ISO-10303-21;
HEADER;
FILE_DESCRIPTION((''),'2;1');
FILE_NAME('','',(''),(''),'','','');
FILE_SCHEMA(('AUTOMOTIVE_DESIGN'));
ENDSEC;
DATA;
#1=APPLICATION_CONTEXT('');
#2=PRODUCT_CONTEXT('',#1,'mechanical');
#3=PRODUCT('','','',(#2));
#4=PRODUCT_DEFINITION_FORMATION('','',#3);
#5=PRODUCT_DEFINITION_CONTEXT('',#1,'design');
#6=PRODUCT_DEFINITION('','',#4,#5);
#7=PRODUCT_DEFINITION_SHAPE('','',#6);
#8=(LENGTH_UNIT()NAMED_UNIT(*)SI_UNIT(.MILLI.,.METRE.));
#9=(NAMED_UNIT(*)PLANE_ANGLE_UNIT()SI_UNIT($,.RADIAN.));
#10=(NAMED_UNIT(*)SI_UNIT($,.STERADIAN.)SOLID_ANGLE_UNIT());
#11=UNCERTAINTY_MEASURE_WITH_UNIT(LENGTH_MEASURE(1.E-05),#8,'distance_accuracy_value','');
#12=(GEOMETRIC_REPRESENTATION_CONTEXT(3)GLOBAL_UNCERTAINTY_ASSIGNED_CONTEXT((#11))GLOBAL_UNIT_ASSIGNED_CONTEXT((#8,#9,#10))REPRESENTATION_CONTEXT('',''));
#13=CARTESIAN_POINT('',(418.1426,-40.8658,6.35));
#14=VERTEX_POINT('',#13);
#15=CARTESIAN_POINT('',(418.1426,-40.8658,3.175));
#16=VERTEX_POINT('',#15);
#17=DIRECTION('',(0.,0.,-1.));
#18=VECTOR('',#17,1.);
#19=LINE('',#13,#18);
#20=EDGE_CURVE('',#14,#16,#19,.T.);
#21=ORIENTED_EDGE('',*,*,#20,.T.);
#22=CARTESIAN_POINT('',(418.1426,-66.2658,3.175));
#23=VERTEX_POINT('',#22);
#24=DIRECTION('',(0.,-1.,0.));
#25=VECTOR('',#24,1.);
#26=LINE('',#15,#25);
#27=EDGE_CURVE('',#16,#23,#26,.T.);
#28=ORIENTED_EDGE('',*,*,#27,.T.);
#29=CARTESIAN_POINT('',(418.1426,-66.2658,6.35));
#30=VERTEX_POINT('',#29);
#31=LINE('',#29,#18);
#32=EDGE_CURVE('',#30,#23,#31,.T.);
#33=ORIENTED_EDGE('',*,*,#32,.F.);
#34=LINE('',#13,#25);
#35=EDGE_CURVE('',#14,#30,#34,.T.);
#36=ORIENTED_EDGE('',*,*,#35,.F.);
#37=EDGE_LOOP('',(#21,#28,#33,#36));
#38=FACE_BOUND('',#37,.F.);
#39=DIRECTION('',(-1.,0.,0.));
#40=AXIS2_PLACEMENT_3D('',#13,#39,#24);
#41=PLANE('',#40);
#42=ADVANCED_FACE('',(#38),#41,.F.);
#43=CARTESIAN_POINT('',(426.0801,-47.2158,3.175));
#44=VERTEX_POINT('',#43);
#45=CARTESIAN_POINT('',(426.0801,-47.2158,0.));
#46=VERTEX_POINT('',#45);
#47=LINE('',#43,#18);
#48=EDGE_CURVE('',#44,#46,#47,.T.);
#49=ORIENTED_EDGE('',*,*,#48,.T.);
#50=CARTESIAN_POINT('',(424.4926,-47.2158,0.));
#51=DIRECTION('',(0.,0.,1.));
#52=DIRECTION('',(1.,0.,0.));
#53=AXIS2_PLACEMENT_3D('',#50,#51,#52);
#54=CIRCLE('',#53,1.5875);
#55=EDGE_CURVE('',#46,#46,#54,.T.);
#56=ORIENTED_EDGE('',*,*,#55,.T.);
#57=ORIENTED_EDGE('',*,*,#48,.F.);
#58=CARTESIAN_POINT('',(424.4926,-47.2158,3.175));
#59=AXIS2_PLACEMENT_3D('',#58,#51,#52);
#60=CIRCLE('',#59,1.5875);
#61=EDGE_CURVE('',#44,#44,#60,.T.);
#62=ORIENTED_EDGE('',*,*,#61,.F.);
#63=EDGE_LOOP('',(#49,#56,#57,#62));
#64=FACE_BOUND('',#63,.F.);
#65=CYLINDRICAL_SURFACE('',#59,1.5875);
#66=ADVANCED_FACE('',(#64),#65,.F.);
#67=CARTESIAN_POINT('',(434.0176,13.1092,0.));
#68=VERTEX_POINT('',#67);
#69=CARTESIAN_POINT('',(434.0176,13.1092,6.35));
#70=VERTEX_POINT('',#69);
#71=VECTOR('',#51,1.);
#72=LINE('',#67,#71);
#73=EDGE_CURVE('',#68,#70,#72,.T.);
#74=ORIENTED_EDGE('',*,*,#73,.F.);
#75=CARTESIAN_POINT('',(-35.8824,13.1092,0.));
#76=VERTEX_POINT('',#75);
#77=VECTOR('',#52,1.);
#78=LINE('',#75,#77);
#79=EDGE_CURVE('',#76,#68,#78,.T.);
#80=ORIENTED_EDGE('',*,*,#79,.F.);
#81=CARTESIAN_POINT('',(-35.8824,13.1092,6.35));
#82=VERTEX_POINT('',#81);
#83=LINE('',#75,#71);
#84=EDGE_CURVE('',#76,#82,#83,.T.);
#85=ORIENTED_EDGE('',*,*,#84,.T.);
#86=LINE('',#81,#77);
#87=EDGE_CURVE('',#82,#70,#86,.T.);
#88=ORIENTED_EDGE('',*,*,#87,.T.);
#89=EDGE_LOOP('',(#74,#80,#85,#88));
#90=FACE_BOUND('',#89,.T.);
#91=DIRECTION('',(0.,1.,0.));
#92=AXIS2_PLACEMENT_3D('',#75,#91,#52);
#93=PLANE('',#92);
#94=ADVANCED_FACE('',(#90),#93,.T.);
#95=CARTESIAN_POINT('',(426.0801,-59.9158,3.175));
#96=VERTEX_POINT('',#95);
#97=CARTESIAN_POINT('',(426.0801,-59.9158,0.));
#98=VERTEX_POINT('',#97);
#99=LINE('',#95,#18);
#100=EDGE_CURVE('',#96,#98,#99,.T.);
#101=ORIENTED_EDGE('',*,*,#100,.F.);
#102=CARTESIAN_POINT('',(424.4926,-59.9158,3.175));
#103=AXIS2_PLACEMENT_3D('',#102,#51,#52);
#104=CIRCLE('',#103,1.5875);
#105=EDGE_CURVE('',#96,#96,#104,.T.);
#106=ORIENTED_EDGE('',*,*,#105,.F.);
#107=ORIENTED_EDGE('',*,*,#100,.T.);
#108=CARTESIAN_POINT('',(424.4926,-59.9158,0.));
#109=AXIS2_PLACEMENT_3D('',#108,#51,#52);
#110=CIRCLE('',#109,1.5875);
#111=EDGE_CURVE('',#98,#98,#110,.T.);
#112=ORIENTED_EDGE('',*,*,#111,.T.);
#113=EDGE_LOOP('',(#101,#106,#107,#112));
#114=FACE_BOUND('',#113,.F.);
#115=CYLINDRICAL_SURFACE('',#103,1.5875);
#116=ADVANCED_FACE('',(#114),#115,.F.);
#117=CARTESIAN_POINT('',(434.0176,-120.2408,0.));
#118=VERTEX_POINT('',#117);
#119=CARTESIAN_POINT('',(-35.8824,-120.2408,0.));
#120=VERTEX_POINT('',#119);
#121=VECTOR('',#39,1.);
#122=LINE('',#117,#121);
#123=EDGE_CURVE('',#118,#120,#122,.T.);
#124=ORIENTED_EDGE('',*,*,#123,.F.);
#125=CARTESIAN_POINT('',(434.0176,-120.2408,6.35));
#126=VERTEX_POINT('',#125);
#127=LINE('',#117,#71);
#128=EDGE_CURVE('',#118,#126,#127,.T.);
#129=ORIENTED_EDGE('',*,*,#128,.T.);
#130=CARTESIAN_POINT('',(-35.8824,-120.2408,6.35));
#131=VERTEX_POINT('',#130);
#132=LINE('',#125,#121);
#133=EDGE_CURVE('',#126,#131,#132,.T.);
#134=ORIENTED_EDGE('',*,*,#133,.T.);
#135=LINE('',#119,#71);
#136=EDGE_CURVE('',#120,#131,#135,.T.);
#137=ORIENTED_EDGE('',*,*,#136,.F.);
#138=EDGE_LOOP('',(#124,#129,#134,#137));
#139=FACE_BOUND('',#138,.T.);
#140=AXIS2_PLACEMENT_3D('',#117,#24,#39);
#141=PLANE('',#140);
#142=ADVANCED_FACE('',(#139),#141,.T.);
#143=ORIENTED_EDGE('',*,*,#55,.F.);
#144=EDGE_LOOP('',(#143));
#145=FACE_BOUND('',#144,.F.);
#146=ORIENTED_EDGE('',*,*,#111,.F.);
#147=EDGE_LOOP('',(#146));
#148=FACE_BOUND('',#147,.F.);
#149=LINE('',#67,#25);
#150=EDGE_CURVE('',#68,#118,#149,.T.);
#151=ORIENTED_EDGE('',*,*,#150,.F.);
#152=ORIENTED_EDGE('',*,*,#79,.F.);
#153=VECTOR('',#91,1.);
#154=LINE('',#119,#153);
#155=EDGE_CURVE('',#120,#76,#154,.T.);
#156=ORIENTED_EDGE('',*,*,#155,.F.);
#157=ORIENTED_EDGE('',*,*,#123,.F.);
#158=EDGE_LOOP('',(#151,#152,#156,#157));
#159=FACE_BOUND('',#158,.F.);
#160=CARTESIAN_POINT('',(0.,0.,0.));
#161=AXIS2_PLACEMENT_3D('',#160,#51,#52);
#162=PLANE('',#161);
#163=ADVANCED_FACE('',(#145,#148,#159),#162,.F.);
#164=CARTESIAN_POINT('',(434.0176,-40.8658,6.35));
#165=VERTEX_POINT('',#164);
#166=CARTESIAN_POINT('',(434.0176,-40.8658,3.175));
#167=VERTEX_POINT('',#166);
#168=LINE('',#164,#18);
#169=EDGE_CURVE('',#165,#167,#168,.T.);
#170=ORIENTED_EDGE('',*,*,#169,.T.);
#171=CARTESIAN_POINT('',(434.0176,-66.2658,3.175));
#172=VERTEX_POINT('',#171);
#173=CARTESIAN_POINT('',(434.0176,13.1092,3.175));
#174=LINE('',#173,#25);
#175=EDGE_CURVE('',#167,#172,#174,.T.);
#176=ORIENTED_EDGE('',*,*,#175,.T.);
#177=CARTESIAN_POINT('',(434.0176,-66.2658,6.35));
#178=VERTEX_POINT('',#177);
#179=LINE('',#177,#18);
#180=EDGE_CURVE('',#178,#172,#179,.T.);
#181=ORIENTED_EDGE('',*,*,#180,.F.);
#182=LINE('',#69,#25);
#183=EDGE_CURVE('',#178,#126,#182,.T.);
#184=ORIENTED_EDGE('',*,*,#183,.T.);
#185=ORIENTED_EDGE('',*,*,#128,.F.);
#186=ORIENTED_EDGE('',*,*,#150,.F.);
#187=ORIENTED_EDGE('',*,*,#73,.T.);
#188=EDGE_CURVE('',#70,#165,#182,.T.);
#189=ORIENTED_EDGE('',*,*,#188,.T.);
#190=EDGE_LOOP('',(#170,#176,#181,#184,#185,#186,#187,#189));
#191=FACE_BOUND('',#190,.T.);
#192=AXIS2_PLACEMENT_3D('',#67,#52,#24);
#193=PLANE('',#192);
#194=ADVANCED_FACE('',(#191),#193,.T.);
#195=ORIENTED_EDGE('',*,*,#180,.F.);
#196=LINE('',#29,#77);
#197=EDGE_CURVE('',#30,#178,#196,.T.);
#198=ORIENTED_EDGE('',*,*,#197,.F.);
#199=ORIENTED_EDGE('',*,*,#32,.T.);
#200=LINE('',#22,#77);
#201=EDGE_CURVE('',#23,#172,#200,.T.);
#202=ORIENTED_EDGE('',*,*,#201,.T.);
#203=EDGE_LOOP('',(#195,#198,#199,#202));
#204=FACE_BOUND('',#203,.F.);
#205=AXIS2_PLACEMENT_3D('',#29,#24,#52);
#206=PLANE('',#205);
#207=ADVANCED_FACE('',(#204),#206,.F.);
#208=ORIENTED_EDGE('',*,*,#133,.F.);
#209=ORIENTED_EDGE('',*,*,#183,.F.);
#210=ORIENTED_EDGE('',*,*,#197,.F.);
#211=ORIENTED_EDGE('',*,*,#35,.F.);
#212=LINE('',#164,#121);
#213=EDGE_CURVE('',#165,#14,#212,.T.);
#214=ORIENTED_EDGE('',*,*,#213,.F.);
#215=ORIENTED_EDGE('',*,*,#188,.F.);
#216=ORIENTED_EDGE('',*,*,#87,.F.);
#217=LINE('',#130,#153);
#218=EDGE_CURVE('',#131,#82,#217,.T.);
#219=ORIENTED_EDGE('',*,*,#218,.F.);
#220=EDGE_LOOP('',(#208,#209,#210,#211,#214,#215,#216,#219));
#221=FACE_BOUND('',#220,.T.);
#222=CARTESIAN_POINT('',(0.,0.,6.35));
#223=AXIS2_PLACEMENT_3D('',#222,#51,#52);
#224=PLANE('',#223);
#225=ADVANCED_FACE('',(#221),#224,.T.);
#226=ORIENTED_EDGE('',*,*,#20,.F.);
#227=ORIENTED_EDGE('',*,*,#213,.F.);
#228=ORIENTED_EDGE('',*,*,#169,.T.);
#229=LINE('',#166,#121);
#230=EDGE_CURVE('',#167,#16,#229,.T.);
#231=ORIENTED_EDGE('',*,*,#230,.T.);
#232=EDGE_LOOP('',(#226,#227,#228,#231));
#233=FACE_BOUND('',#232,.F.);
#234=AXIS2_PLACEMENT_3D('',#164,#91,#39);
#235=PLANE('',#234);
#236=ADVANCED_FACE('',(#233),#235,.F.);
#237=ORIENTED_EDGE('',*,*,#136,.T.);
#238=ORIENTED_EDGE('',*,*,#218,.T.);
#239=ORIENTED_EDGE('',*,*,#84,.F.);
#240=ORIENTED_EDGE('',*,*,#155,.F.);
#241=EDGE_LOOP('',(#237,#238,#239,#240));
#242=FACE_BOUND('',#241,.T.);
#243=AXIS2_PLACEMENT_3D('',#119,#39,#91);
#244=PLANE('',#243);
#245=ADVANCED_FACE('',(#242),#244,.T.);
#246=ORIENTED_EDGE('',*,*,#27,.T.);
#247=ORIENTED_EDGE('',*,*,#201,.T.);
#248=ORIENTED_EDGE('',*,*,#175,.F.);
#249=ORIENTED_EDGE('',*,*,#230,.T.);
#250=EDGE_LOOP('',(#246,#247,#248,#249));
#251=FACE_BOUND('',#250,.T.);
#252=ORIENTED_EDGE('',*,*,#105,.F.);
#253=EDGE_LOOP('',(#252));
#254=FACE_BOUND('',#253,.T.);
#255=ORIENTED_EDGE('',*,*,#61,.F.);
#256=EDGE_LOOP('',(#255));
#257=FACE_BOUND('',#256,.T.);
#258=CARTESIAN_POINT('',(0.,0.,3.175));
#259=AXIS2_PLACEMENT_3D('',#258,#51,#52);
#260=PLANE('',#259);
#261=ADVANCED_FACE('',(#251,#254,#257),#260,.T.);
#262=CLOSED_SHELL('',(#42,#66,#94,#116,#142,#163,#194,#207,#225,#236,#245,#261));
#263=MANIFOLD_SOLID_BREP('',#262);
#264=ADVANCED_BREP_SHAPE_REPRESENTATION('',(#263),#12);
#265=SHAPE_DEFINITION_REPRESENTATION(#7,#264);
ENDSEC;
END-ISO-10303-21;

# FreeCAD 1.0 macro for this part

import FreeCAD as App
import Part
import Sketcher
from FreeCAD import Vector
Q = App.Units.Quantity


def add_polygon(sketch, points):
    """Adds a closed chain of lines whose ends are joined by coincident constraints."""
    first, n = sketch.GeometryCount, len(points)
    for a, b in zip(points, points[1:] + points[:1]):
        sketch.addGeometry(Part.LineSegment(App.Vector(*a, 0), App.Vector(*b, 0)), False)
    for i in range(n):
        sketch.addConstraint(Sketcher.Constraint("Coincident", first + i, 2, first + (i + 1) % n, 1))

doc = App.newDocument("Part")
body = doc.addObject("PartDesign::Body", "Body")

sketch1 = body.newObject("Sketcher::SketchObject", "Sketch")
sketch1.AttachmentSupport = (doc.getObject("XY_Plane"), [""])
sketch1.MapMode = "FlatFace"
add_polygon(sketch1, [(434.0176, 13.1092), (-35.8824, 13.1092), (-35.8824, -120.2408), (434.0176, -120.2408)])
sketch1.addConstraint([
    Sketcher.Constraint("Horizontal", 0),
    Sketcher.Constraint("Vertical", 1),
    Sketcher.Constraint("Horizontal", 2),
    Sketcher.Constraint("Vertical", 3),
    Sketcher.Constraint("DistanceX", 0, 2, 0, 1, Q("18.5 in")),
    Sketcher.Constraint("DistanceY", 1, 2, 1, 1, Q("5.25 in")),
    Sketcher.Constraint("DistanceX", 0, 2, -1, 1, Q("1.4127 in")),
    Sketcher.Constraint("DistanceY", -1, 1, 0, 2, Q("0.5161 in")),
])
pad1 = body.newObject("PartDesign::Pad", "Pad")
pad1.Profile = sketch1
pad1.Length = Q("0.25 in")

sketch2 = body.newObject("Sketcher::SketchObject", "Sketch001")
sketch2.AttachmentSupport = (doc.getObject("XY_Plane"), [""])
sketch2.MapMode = "FlatFace"
sketch2.AttachmentOffset = App.Placement(Vector(0, 0, 0.25 * 25.4), App.Rotation())
add_polygon(sketch2, [(434.0176, -66.2658), (434.0176, -40.8658), (418.1426, -40.8658), (418.1426, -66.2658)])
sketch2.addConstraint([
    Sketcher.Constraint("Vertical", 0),
    Sketcher.Constraint("Horizontal", 1),
    Sketcher.Constraint("Vertical", 2),
    Sketcher.Constraint("Horizontal", 3),
    Sketcher.Constraint("DistanceY", 0, 1, 0, 2, Q("1 in")),
    Sketcher.Constraint("DistanceX", 1, 2, 1, 1, Q("0.625 in")),
    Sketcher.Constraint("DistanceX", -1, 1, 0, 2, Q("17.0873 in")),
    Sketcher.Constraint("DistanceY", 0, 2, -1, 1, Q("1.6089 in")),
])
pocket1 = body.newObject("PartDesign::Pocket", "Pocket")
pocket1.Profile = sketch2
pocket1.Length = Q("0.125 in")

sketch3 = body.newObject("Sketcher::SketchObject", "Sketch002")
sketch3.AttachmentSupport = (doc.getObject("XY_Plane"), [""])
sketch3.MapMode = "FlatFace"
sketch3.AttachmentOffset = App.Placement(Vector(0, 0, 0.125 * 25.4), App.Rotation())
sketch3.addGeometry([
    Part.Circle(Vector(424.4926, -47.2158, 0), Vector(0, 0, 1), 1.5875),
    Part.Circle(Vector(424.4926, -59.9158, 0), Vector(0, 0, 1), 1.5875),
], False)
sketch3.addConstraint([
    Sketcher.Constraint("Equal", 0, 1),
    Sketcher.Constraint("Vertical", 0, 3, 1, 3),
    Sketcher.Constraint("Diameter", 0, Q("0.125 in")),
    Sketcher.Constraint("DistanceY", 1, 3, 0, 3, Q("0.5 in")),
    Sketcher.Constraint("DistanceX", -1, 1, 0, 3, Q("16.7123 in")),
    Sketcher.Constraint("DistanceY", 0, 3, -1, 1, Q("1.8589 in")),
])
pocket2 = body.newObject("PartDesign::Pocket", "Pocket001")
pocket2.Profile = sketch3
pocket2.Length = Q("1 in")

doc.recompute()
